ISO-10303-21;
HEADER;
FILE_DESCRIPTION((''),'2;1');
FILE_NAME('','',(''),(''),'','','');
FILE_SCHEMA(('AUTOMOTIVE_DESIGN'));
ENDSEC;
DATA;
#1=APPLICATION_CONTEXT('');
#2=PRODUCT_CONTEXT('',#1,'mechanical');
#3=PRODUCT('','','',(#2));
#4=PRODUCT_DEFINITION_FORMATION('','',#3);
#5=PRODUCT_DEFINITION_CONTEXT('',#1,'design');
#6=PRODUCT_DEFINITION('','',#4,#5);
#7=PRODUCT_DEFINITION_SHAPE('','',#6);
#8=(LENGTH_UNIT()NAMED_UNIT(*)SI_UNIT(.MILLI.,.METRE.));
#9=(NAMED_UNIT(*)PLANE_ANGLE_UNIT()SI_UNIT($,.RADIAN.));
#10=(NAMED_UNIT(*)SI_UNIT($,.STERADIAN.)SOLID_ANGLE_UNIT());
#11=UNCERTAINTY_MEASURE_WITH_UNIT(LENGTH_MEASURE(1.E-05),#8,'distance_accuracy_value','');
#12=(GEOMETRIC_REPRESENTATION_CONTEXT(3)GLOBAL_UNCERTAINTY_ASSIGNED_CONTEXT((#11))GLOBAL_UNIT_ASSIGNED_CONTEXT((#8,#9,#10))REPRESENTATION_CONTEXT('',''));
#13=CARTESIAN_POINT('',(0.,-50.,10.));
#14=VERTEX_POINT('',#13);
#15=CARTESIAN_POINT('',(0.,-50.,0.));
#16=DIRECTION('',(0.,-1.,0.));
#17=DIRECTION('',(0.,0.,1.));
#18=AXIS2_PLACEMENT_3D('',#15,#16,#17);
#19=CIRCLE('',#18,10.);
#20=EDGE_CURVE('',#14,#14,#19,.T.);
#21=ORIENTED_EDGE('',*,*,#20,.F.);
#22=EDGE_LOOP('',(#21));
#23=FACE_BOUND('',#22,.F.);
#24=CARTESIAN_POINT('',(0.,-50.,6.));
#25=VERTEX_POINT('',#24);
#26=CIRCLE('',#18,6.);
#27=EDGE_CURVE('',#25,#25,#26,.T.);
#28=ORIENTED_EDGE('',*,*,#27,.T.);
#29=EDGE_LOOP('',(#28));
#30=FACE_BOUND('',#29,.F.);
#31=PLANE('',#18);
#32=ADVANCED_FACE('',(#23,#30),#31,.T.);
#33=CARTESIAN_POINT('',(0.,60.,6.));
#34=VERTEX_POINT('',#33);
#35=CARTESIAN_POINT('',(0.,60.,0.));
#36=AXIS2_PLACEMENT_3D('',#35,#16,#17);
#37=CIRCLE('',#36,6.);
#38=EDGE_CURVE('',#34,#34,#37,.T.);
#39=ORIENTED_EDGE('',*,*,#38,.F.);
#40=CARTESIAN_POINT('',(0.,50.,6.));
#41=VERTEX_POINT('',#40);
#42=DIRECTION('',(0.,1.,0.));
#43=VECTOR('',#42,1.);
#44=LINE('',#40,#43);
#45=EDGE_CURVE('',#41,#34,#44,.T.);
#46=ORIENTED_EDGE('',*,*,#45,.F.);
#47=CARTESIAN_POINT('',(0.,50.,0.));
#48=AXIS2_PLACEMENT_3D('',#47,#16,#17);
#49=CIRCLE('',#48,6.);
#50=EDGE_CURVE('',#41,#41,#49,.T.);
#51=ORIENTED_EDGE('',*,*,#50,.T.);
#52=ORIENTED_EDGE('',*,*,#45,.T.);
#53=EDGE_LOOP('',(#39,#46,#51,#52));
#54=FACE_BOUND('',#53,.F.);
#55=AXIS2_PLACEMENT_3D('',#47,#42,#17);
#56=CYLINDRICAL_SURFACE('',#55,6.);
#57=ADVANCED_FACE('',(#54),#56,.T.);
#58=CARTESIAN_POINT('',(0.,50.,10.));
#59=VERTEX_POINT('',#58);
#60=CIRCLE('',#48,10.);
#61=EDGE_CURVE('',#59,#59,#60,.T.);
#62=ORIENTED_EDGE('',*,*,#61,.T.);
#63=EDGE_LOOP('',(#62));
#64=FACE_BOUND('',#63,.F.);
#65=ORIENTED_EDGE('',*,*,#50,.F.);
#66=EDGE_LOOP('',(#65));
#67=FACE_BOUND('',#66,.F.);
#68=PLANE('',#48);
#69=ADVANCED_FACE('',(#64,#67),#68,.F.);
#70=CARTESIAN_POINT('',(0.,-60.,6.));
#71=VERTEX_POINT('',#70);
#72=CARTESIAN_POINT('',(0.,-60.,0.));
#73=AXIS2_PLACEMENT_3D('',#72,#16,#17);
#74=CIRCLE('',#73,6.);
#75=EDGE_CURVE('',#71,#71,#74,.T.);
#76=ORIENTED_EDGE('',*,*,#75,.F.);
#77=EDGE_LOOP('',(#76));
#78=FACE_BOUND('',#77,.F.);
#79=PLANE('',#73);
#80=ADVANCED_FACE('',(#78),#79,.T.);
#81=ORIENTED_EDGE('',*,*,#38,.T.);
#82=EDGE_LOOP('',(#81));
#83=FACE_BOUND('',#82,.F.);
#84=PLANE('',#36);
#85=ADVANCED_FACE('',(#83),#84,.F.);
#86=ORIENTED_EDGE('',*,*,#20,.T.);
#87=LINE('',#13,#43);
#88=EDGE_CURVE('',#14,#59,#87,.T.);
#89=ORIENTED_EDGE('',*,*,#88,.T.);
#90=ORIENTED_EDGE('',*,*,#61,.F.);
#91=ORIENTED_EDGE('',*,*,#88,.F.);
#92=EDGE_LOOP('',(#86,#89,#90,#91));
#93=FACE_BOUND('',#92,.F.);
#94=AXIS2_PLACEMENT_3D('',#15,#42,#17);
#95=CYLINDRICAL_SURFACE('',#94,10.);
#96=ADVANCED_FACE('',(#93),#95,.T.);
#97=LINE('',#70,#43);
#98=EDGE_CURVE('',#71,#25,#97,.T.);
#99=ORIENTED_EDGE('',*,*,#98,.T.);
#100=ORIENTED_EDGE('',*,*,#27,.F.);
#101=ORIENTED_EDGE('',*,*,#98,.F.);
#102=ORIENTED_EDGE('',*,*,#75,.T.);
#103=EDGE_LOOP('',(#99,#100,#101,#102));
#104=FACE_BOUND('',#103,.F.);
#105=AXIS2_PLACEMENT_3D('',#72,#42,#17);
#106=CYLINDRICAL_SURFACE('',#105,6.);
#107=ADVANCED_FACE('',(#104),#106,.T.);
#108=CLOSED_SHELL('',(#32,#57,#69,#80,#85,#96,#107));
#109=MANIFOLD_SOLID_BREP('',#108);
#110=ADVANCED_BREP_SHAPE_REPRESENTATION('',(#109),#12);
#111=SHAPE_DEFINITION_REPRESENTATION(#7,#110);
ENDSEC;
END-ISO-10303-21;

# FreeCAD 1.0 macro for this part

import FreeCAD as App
import Part
import Sketcher


def add_polygon(sketch, points):
    """Adds a closed chain of lines whose ends are joined by coincident constraints."""
    first, n = sketch.GeometryCount, len(points)
    for a, b in zip(points, points[1:] + points[:1]):
        sketch.addGeometry(Part.LineSegment(App.Vector(*a, 0), App.Vector(*b, 0)), False)
    for i in range(n):
        sketch.addConstraint(Sketcher.Constraint("Coincident", first + i, 2, first + (i + 1) % n, 1))

doc = App.newDocument("Part")
params = doc.addObject("Spreadsheet::Sheet", "Params")
for row, (alias, value) in enumerate([
    ("sketch1_width", "120 mm"),
    ("sketch1_width2", "10 mm"),
    ("sketch1_height", "6 mm"),
    ("sketch1_height2", "4 mm"),
    ("revolution_angle", "360 deg"),
], start=1):
    params.set(f"A{row}", alias)
    params.set(f"B{row}", "=" + value)
    params.setAlias(f"B{row}", alias)

body = doc.addObject("PartDesign::Body", "Body")

# Sketch on YZ plane
sketch1 = body.newObject("Sketcher::SketchObject", "Sketch")
sketch1.AttachmentSupport = (doc.getObject("YZ_Plane"), [""])
sketch1.MapMode = "FlatFace"
add_polygon(sketch1, [(-60, 0), (60, 0), (60, 6), (50, 6), (50, 10), (-50, 10), (-50, 6), (-60, 6)])  # lines 0-7
sketch1.addConstraint([
    Sketcher.Constraint("Horizontal", 0),
    Sketcher.Constraint("Vertical", 1),
    Sketcher.Constraint("Horizontal", 2),
    Sketcher.Constraint("Vertical", 3),
    Sketcher.Constraint("Horizontal", 4),
    Sketcher.Constraint("Vertical", 5),
    Sketcher.Constraint("Horizontal", 6),
    Sketcher.Constraint("Vertical", 7),
    Sketcher.Constraint("Symmetric", 0, 2, 7, 2, -1, 1),
    Sketcher.Constraint("Symmetric", 2, 2, 5, 2, -2),
    Sketcher.Constraint("DistanceX", 0, 1, 0, 2, 120.0),
    Sketcher.Constraint("DistanceX", 2, 2, 2, 1, 10.0),
    Sketcher.Constraint("DistanceY", 1, 1, 1, 2, 6.0),
    Sketcher.Constraint("DistanceY", 3, 1, 3, 2, 4.0),
])
sketch1.setExpression("Constraints[18]", "Params.sketch1_width")
sketch1.setExpression("Constraints[19]", "Params.sketch1_width2")
sketch1.setExpression("Constraints[20]", "Params.sketch1_height")
sketch1.setExpression("Constraints[21]", "Params.sketch1_height2")
revolution = body.newObject("PartDesign::Revolution", "Revolution")
revolution.Profile = sketch1
revolution.ReferenceAxis = (sketch1, ["H_Axis"])
revolution.setExpression("Angle", "Params.revolution_angle")

doc.recompute()
